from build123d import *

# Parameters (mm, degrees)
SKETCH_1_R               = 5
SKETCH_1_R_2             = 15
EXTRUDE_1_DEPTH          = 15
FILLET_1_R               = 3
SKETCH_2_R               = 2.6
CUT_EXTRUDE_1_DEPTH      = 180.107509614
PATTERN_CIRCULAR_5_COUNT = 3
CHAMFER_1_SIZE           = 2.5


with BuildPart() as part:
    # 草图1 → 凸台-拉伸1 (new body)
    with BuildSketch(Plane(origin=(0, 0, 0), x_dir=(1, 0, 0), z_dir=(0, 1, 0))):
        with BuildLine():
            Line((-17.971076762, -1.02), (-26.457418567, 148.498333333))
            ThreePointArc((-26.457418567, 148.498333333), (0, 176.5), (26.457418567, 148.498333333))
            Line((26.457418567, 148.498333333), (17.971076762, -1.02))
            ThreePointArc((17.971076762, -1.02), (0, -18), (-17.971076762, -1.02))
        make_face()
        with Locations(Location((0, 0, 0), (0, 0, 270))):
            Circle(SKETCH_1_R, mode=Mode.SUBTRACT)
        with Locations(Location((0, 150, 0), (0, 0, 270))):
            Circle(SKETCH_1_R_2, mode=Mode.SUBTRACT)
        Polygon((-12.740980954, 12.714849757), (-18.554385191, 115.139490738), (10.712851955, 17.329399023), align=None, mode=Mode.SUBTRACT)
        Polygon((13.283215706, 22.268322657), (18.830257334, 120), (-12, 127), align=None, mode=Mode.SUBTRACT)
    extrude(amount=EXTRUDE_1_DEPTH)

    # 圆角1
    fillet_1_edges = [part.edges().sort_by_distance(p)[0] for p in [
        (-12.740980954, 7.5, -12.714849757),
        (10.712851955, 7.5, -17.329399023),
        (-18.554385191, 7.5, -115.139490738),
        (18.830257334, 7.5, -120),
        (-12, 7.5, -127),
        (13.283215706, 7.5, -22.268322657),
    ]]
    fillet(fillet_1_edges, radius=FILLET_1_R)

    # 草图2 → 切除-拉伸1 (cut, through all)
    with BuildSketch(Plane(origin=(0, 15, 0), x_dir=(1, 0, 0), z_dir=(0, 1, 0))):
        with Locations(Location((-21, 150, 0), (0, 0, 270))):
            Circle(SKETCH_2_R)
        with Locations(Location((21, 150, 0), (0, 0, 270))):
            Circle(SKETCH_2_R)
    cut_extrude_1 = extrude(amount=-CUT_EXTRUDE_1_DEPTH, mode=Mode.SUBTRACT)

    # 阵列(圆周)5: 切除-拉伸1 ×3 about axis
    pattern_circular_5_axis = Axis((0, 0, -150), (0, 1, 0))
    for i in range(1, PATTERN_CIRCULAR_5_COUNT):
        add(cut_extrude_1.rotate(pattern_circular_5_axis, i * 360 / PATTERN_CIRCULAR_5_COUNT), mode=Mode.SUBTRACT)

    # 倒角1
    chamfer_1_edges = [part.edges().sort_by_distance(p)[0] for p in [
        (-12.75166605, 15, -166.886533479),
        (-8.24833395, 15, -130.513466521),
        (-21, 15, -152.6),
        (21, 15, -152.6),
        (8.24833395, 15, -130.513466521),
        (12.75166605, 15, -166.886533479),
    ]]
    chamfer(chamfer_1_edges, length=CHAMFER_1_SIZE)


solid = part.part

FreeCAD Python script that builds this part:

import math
import FreeCAD as App
import Part
import Sketcher
from FreeCAD import Vector


def edges_at(feature, points):
    """Names of the edges that pass closest to the given points."""
    edges = feature.Shape.Edges
    near = lambda p: min(range(len(edges)), key=lambda i: edges[i].distToShape(Part.Vertex(*p))[0])
    return sorted({f"Edge{near(p) + 1}" for p in points})


def add_polygon(sketch, points):
    """Adds a closed chain of lines whose ends are joined by coincident constraints."""
    first, n = sketch.GeometryCount, len(points)
    for a, b in zip(points, points[1:] + points[:1]):
        sketch.addGeometry(Part.LineSegment(App.Vector(*a, 0), App.Vector(*b, 0)), False)
    for i in range(n):
        sketch.addConstraint(Sketcher.Constraint("Coincident", first + i, 2, first + (i + 1) % n, 1))

doc = App.newDocument("Part")
params = doc.addObject("Spreadsheet::Sheet", "Params")
for row, (alias, value) in enumerate([
    ("sketch1_diameter", "10 mm"),
    ("sketch1_diameter2", "30 mm"),
    ("sketch1_radius", "18 mm"),
    ("sketch1_radius2", "26.5 mm"),
    ("pad1_length", "15 mm"),
    ("fillet_radius", "3 mm"),
    ("sketch2_diameter", "5.2 mm"),
    ("chamfer_size", "2.5 mm"),
], start=1):
    params.set(f"A{row}", alias)
    params.set(f"B{row}", "=" + value)
    params.setAlias(f"B{row}", alias)

body = doc.addObject("PartDesign::Body", "Body")

sketch1 = body.newObject("Sketcher::SketchObject", "Sketch")
sketch1.AttachmentSupport = (doc.getObject("XZ_Plane"), [""])
sketch1.MapMode = "FlatFace"
sketch1.addGeometry(Part.LineSegment(Vector(-26, -148, 0), Vector(-18, 1, 0)), False)
sketch1.addGeometry(Part.ArcOfCircle(Part.Circle(Vector(0, 0, 0), Vector(0, 0, 1), 18), math.radians(3), math.radians(177)), False)
sketch1.addGeometry(Part.LineSegment(Vector(18, 1, 0), Vector(26, -148, 0)), False)
sketch1.addGeometry(Part.ArcOfCircle(Part.Circle(Vector(0, -150, 0), Vector(0, 0, 1), 26), math.radians(177), math.radians(363)), False)
add_polygon(sketch1, [(13, -22), (-12, -127), (19, -120)])
sketch1.addGeometry(Part.Circle(Vector(0, 0, 0), Vector(0, 0, 1), 5), False)
add_polygon(sketch1, [(-13, -13), (-19, -115), (11, -17)])
sketch1.addGeometry(Part.Circle(Vector(0, -150, 0), Vector(0, 0, 1), 15), False)
sketch1.addConstraint([
    Sketcher.Constraint("Tangent", 0, 2, 1, 2),
    Sketcher.Constraint("Tangent", 1, 1, 2, 1),
    Sketcher.Constraint("Tangent", 2, 2, 3, 2),
    Sketcher.Constraint("Tangent", 3, 1, 0, 1),
    Sketcher.Constraint("Coincident", 1, 3, -1, 1),
    Sketcher.Constraint("Coincident", 7, 3, -1, 1),
    Sketcher.Constraint("Coincident", 11, 3, 3, 3),
    Sketcher.Constraint("PointOnObject", 3, 3, -2),
    Sketcher.Constraint("Parallel", 2, 6),
    Sketcher.Constraint("Parallel", 0, 8),
    Sketcher.Constraint("Diameter", 7, 10.0),
    Sketcher.Constraint("Diameter", 11, 30.0),
    Sketcher.Constraint("Radius", 1, 18.0),
    Sketcher.Constraint("Radius", 3, 26.5),
    Sketcher.Constraint("DistanceY", 3, 3, -1, 1, 150.0),
    Sketcher.Constraint("DistanceX", 4, 2, -1, 1, 12.0),
    Sketcher.Constraint("DistanceY", 4, 2, -1, 1, 127.0),
    Sketcher.Constraint("DistanceY", 5, 2, -1, 1, 120.0),
    Sketcher.Constraint("DistanceY", 9, 2, -1, 1, 17.329399),
    Sketcher.Constraint("Distance", 6, 97.88897),
    Sketcher.Constraint("Distance", 9, 102.094981),
    Sketcher.Constraint("Distance", 10, 23.90348),
    Sketcher.Constraint("DistanceY", 8, 2, -1, 1, 115.139491),
    Sketcher.Constraint("DistanceX", -1, 1, 9, 2, 10.712852),
    Sketcher.Constraint("DistanceX", 5, 2, 2, 2, 7.627161),
])
sketch1.setExpression("Constraints[16]", "Params.sketch1_diameter")
sketch1.setExpression("Constraints[17]", "Params.sketch1_diameter2")
sketch1.setExpression("Constraints[18]", "Params.sketch1_radius")
sketch1.setExpression("Constraints[19]", "Params.sketch1_radius2")
pad1 = body.newObject("PartDesign::Pad", "Pad")
pad1.Profile = sketch1
pad1.setExpression("Length", "Params.pad1_length")
pad1.Reversed = True
doc.recompute()

fillet = body.newObject("PartDesign::Fillet", "Fillet")
fillet.Base = (pad1, edges_at(pad1, [
    (-12.741, 7.5, -12.715),
    (10.713, 7.5, -17.329),
    (-18.554, 7.5, -115.139),
    (18.83, 7.5, -120),
    (-12, 7.5, -127),
    (13.283, 7.5, -22.268),
]))
fillet.setExpression("Radius", "Params.fillet_radius")

sketch2 = body.newObject("Sketcher::SketchObject", "Sketch001")
sketch2.AttachmentSupport = (doc.getObject("XZ_Plane"), [""])
sketch2.MapMode = "FlatFace"
sketch2.AttachmentOffset = App.Placement(Vector(0, 0, -15), App.Rotation())
sketch2.addGeometry([
    Part.Circle(Vector(-21, -150, 0), Vector(0, 0, 1), 2.6),
    Part.Circle(Vector(21, -150, 0), Vector(0, 0, 1), 2.6),
], False)
sketch2.addConstraint([
    Sketcher.Constraint("Equal", 0, 1),
    Sketcher.Constraint("Symmetric", 0, 3, 1, 3, -2),
    Sketcher.Constraint("Diameter", 0, 5.2),
    Sketcher.Constraint("DistanceX", 0, 3, -1, 1, 21.0),
    Sketcher.Constraint("DistanceY", 0, 3, -1, 1, 150.0),
])
sketch2.setExpression("Constraints[2]", "Params.sketch2_diameter")
pocket1 = body.newObject("PartDesign::Pocket", "Pocket")
pocket1.Profile = sketch2
pocket1.Type = "ThroughAll"
pocket1.Reversed = True
doc.recompute()

datumline = body.newObject("PartDesign::Line", "DatumLine")
datumline.Placement = App.Placement(Vector(0, 0, -150), App.Rotation(Vector(0, 0, 1), Vector(0, 1, 0)))
polarpattern = body.newObject("PartDesign::PolarPattern", "PolarPattern")
polarpattern.Originals = [pocket1]
polarpattern.Axis = (datumline, [""])
polarpattern.Angle = 360
polarpattern.Occurrences = 3
body.Tip = polarpattern
doc.recompute()

chamfer = body.newObject("PartDesign::Chamfer", "Chamfer")
chamfer.Base = (polarpattern, edges_at(polarpattern, [
    (-12.752, 15, -166.887),
    (-8.248, 15, -130.513),
    (-21, 15, -152.6),
    (21, 15, -152.6),
    (8.248, 15, -130.513),
    (12.752, 15, -166.887),
]))
chamfer.setExpression("Size", "Params.chamfer_size")

doc.recompute()
